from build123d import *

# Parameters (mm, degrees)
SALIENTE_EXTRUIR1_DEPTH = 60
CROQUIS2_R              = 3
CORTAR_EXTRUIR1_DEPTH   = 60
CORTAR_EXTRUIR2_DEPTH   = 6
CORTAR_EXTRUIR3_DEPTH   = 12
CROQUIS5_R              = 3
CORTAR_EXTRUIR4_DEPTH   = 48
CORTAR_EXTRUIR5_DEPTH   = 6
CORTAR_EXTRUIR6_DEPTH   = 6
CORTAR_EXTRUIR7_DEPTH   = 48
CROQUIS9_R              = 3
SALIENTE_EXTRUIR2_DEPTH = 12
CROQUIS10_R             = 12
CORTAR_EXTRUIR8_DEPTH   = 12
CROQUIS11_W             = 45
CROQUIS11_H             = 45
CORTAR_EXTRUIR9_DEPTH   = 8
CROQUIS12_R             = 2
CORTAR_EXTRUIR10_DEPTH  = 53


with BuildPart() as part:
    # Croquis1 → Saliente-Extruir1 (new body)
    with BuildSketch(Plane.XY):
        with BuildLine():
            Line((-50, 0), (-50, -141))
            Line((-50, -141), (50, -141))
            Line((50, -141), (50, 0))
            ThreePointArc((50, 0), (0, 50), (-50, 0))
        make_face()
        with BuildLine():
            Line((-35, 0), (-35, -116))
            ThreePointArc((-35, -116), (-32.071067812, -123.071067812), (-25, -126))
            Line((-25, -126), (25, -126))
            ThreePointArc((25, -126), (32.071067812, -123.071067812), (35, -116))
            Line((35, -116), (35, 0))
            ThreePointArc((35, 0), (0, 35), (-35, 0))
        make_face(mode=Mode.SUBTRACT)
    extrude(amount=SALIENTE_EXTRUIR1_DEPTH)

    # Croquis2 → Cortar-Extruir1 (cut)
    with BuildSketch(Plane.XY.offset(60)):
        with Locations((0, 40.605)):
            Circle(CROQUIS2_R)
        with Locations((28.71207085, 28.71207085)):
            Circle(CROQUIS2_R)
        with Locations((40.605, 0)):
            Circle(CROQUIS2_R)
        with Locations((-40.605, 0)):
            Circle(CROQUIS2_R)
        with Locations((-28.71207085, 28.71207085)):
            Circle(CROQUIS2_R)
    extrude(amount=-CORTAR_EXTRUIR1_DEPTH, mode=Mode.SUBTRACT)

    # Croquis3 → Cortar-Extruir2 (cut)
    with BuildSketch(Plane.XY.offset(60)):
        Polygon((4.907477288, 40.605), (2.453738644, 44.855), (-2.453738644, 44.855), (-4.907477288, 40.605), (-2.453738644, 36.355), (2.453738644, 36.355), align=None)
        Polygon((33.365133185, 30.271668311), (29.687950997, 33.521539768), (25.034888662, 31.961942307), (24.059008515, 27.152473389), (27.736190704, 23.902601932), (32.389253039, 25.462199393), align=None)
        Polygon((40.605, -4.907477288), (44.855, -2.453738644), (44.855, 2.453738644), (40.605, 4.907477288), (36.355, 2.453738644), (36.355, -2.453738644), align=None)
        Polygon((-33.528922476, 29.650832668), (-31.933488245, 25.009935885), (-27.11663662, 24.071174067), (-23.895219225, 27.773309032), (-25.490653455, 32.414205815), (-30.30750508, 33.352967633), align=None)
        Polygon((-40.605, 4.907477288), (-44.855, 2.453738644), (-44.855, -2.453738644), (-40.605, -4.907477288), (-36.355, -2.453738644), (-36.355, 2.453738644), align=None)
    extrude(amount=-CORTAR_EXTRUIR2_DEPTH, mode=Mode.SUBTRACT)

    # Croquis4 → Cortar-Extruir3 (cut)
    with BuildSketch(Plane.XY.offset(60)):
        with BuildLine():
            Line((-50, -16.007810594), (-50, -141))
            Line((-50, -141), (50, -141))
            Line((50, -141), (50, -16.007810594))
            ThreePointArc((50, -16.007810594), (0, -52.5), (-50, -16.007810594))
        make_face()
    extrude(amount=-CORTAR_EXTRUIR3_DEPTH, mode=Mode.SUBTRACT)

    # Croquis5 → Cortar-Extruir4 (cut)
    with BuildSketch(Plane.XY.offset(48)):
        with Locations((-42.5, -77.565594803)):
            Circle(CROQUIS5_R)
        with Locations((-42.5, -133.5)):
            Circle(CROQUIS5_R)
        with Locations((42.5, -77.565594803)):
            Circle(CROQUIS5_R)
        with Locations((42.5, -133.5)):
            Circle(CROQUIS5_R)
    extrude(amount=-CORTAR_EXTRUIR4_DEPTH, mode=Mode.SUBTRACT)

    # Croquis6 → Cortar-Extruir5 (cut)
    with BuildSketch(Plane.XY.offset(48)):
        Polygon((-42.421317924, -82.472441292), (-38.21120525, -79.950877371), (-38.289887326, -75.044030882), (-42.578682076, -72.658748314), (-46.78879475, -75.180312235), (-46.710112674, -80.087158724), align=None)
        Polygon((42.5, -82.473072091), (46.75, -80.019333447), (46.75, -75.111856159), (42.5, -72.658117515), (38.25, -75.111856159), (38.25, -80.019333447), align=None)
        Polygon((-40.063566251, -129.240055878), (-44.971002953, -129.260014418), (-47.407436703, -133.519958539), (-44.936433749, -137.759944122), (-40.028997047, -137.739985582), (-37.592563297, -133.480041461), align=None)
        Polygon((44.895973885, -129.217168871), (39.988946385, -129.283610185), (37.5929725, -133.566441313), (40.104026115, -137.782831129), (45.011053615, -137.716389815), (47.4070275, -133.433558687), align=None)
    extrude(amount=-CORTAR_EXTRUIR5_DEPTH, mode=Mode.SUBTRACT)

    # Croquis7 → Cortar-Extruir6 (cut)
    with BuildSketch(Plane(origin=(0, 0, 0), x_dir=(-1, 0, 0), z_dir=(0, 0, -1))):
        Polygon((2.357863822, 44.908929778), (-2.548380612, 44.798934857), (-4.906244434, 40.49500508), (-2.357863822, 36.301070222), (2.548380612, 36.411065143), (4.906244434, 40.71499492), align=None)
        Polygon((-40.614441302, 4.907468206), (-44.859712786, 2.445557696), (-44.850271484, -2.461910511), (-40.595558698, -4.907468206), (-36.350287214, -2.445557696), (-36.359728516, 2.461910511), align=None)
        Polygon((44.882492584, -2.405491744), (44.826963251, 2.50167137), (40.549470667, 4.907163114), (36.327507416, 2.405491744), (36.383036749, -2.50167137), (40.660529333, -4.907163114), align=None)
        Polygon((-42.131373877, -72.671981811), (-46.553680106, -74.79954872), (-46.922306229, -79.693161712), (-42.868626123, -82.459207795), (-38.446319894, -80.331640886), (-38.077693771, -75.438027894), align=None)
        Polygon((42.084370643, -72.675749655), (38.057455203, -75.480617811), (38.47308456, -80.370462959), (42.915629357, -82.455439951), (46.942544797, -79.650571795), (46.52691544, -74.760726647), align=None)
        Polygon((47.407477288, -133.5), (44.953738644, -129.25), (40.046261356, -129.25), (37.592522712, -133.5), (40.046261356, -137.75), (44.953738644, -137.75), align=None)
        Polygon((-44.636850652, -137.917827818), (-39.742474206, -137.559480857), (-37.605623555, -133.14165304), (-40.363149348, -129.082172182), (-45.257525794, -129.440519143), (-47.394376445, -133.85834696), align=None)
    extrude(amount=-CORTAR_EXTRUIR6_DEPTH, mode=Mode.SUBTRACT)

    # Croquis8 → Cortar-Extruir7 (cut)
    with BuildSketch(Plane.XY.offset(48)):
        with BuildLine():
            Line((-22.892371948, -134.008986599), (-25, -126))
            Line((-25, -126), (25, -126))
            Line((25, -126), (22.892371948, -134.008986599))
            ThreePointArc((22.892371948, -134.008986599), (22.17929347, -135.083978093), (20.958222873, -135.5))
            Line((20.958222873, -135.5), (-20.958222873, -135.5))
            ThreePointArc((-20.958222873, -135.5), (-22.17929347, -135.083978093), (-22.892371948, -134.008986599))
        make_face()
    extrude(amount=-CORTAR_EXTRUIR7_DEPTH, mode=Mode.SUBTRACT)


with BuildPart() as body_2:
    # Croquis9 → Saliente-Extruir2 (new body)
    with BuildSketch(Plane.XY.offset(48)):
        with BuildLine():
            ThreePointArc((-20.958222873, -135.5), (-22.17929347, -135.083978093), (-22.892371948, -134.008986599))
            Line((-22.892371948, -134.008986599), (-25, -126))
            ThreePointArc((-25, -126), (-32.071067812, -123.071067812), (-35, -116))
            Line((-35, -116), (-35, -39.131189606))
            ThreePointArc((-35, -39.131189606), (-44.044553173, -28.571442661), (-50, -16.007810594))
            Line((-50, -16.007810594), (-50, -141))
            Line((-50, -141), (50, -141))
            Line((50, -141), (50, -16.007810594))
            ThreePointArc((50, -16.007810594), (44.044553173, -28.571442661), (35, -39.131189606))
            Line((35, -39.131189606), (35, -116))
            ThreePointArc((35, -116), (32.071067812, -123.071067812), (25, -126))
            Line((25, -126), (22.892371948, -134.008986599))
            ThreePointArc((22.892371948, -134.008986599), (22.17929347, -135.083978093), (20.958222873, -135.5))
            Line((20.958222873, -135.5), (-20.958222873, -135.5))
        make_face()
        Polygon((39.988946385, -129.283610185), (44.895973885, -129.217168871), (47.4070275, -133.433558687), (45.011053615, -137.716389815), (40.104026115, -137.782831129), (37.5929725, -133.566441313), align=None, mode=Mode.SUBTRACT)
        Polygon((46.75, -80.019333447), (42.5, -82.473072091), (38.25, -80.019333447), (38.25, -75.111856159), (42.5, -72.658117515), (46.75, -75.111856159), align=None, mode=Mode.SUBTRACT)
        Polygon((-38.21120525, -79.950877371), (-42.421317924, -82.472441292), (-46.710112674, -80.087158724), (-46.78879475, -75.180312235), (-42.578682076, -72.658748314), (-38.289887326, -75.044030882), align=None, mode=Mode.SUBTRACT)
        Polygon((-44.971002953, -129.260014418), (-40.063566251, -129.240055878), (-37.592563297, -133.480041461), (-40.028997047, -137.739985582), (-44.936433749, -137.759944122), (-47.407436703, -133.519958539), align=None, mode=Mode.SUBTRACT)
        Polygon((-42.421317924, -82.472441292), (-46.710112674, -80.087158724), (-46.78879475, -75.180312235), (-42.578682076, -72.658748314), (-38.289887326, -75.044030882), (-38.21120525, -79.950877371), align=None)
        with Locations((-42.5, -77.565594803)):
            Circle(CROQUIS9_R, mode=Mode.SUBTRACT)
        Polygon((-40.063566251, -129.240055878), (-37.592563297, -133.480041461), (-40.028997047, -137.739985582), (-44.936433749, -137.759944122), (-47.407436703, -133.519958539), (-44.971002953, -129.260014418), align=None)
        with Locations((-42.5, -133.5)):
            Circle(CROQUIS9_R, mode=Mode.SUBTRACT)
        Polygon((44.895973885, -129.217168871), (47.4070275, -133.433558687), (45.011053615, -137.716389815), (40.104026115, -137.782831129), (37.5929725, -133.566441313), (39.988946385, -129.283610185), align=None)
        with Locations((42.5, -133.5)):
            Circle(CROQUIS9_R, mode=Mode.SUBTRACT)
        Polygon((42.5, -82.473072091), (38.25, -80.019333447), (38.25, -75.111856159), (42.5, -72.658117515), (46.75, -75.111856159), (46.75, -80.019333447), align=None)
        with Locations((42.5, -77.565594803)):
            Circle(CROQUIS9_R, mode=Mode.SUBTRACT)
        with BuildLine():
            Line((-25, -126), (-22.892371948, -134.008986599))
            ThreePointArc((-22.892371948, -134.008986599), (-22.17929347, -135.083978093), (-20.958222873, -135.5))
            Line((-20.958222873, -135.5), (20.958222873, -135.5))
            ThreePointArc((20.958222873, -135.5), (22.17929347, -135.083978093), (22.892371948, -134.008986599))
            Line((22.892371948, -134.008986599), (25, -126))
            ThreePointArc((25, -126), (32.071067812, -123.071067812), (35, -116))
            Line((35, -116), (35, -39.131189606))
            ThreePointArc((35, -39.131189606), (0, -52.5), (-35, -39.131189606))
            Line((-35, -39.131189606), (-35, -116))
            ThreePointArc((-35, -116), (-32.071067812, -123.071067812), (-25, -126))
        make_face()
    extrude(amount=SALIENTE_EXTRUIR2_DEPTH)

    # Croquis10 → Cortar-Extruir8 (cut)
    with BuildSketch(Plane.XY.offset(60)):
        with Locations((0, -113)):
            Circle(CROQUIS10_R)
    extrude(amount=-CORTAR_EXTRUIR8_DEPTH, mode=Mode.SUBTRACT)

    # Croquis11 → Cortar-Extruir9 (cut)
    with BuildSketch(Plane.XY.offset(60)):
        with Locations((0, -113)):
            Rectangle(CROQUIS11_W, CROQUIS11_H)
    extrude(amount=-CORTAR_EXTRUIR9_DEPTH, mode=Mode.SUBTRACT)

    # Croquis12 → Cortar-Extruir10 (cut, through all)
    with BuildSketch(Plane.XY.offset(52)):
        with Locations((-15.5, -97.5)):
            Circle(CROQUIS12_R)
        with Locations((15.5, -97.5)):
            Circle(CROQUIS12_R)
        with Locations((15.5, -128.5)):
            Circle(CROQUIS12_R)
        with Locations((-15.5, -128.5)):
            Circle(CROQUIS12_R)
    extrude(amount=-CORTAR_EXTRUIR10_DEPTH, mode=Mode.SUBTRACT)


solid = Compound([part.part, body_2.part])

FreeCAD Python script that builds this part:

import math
import FreeCAD as App
import Part
import Sketcher
Q = App.Units.Quantity


def add_polygon(sketch, points):
    """Adds a closed chain of lines whose ends are joined by coincident constraints."""
    first, n = sketch.GeometryCount, len(points)
    for a, b in zip(points, points[1:] + points[:1]):
        sketch.addGeometry(Part.LineSegment(App.Vector(*a, 0), App.Vector(*b, 0)), False)
    for i in range(n):
        sketch.addConstraint(Sketcher.Constraint("Coincident", first + i, 2, first + (i + 1) % n, 1))

doc = App.newDocument("Part")
body = doc.addObject("PartDesign::Body", "Body")

# Sketch on XY plane
sketch1 = body.newObject("Sketcher::SketchObject", "Sketch")
sketch1.AttachmentSupport = (doc.getObject("XY_Plane"), [""])
sketch1.MapMode = "FlatFace"
sketch1.addGeometry(Part.LineSegment(App.Vector(-50, 0, 0), App.Vector(-50, -141, 0)), False)
sketch1.addGeometry(Part.LineSegment(App.Vector(-50, -141, 0), App.Vector(50, -141, 0)), False)
sketch1.addGeometry(Part.LineSegment(App.Vector(50, -141, 0), App.Vector(50, 0, 0)), False)
sketch1.addGeometry(Part.ArcOfCircle(Part.Circle(App.Vector(0, 0, 0), App.Vector(0, 0, 1), 50), math.radians(0), math.radians(180)), False)
sketch1.addGeometry(Part.LineSegment(App.Vector(-35, -116, 0), App.Vector(-35, 0, 0)), False)
sketch1.addGeometry(Part.ArcOfCircle(Part.Circle(App.Vector(0, 0, 0), App.Vector(0, 0, 1), 35), math.radians(0), math.radians(180)), False)
sketch1.addGeometry(Part.LineSegment(App.Vector(35, 0, 0), App.Vector(35, -116, 0)), False)
sketch1.addGeometry(Part.ArcOfCircle(Part.Circle(App.Vector(25, -116, 0), App.Vector(0, 0, 1), 10), math.radians(-90), math.radians(0)), False)
sketch1.addGeometry(Part.LineSegment(App.Vector(25, -126, 0), App.Vector(-25, -126, 0)), False)
sketch1.addGeometry(Part.ArcOfCircle(Part.Circle(App.Vector(-25, -116, 0), App.Vector(0, 0, 1), 10), math.radians(180), math.radians(270)), False)
sketch1.addConstraint(Sketcher.Constraint("Coincident", 0, 2, 1, 1))
sketch1.addConstraint(Sketcher.Constraint("Coincident", 1, 2, 2, 1))
sketch1.addConstraint(Sketcher.Constraint("Tangent", 2, 2, 3, 1))
sketch1.addConstraint(Sketcher.Constraint("Tangent", 3, 2, 0, 1))
sketch1.addConstraint(Sketcher.Constraint("Tangent", 4, 2, 5, 2))
sketch1.addConstraint(Sketcher.Constraint("Tangent", 5, 1, 6, 1))
sketch1.addConstraint(Sketcher.Constraint("Tangent", 6, 2, 7, 2))
sketch1.addConstraint(Sketcher.Constraint("Tangent", 7, 1, 8, 1))
sketch1.addConstraint(Sketcher.Constraint("Tangent", 8, 2, 9, 2))
sketch1.addConstraint(Sketcher.Constraint("Tangent", 9, 1, 4, 1))
sketch1.addConstraint(Sketcher.Constraint("Vertical", 0))
sketch1.addConstraint(Sketcher.Constraint("Horizontal", 1))
sketch1.addConstraint(Sketcher.Constraint("Vertical", 2))
sketch1.addConstraint(Sketcher.Constraint("Vertical", 4))
sketch1.addConstraint(Sketcher.Constraint("Vertical", 6))
sketch1.addConstraint(Sketcher.Constraint("Horizontal", 8))
sketch1.addConstraint(Sketcher.Constraint("Coincident", 3, 3, -1, 1))
sketch1.addConstraint(Sketcher.Constraint("Coincident", 5, 3, -1, 1))
sketch1.addConstraint(Sketcher.Constraint("Equal", 7, 9))
sketch1.addConstraint(Sketcher.Constraint("Radius", 3, Q("50 mm")))
sketch1.addConstraint(Sketcher.Constraint("Radius", 5, Q("35 mm")))
sketch1.addConstraint(Sketcher.Constraint("Radius", 7, Q("10 mm")))
sketch1.addConstraint(Sketcher.Constraint("DistanceY", 0, 2, 0, 1, Q("141 mm")))
sketch1.addConstraint(Sketcher.Constraint("DistanceY", 4, 1, 4, 2, Q("116 mm")))
pad1 = body.newObject("PartDesign::Pad", "Pad")
pad1.Profile = sketch1
pad1.Length = 60

# Sketch on XY plane
sketch2 = body.newObject("Sketcher::SketchObject", "Sketch001")
sketch2.AttachmentSupport = (doc.getObject("XY_Plane"), [""])
sketch2.MapMode = "FlatFace"
sketch2.AttachmentOffset = App.Placement(App.Vector(0, 0, 60), App.Rotation())
sketch2.addGeometry(Part.Circle(App.Vector(0, 40.6, 0), App.Vector(0, 0, 1), 3), False)
sketch2.addGeometry(Part.Circle(App.Vector(28.7, 28.7, 0), App.Vector(0, 0, 1), 3), False)
sketch2.addGeometry(Part.Circle(App.Vector(40.6, 0, 0), App.Vector(0, 0, 1), 3), False)
sketch2.addGeometry(Part.Circle(App.Vector(-40.6, 0, 0), App.Vector(0, 0, 1), 3), False)
sketch2.addGeometry(Part.Circle(App.Vector(-28.7, 28.7, 0), App.Vector(0, 0, 1), 3), False)
sketch2.addConstraint(Sketcher.Constraint("Equal", 0, 1))
sketch2.addConstraint(Sketcher.Constraint("Equal", 1, 2))
sketch2.addConstraint(Sketcher.Constraint("Equal", 2, 3))
sketch2.addConstraint(Sketcher.Constraint("Equal", 3, 4))
sketch2.addConstraint(Sketcher.Constraint("Symmetric", 2, 3, 3, 3, -1, 1))
sketch2.addConstraint(Sketcher.Constraint("Symmetric", 1, 3, 4, 3, -2))
sketch2.addConstraint(Sketcher.Constraint("PointOnObject", 0, 3, -2))
sketch2.addConstraint(Sketcher.Constraint("PointOnObject", 2, 3, -1))
sketch2.addConstraint(Sketcher.Constraint("Diameter", 0, Q("6 mm")))
sketch2.addConstraint(Sketcher.Constraint("DistanceX", 3, 3, 2, 3, Q("81.21 mm")))
sketch2.addConstraint(Sketcher.Constraint("DistanceY", -1, 1, 0, 3, Q("40.605 mm")))
sketch2.addConstraint(Sketcher.Constraint("DistanceX", -1, 1, 1, 3, Q("28.712071 mm")))
sketch2.addConstraint(Sketcher.Constraint("DistanceY", -1, 1, 1, 3, Q("28.712071 mm")))
pocket1 = body.newObject("PartDesign::Pocket", "Pocket")
pocket1.Profile = sketch2
pocket1.Length = 60

# Sketch on XY plane
sketch3 = body.newObject("Sketcher::SketchObject", "Sketch002")
sketch3.AttachmentSupport = (doc.getObject("XY_Plane"), [""])
sketch3.MapMode = "FlatFace"
sketch3.AttachmentOffset = App.Placement(App.Vector(0, 0, 60), App.Rotation())
add_polygon(sketch3, [(4.9, 40.6), (2.5, 44.9), (-2.5, 44.9), (-4.9, 40.6), (-2.5, 36.4), (2.5, 36.4)])  # lines 0-5
add_polygon(sketch3, [(33.4, 30.3), (29.7, 33.5), (25, 32), (24.1, 27.2), (27.7, 23.9), (32.4, 25.5)])  # lines 6-11
add_polygon(sketch3, [(40.6, -4.9), (44.9, -2.5), (44.9, 2.5), (40.6, 4.9), (36.4, 2.5), (36.4, -2.5)])  # lines 12-17
add_polygon(sketch3, [(-33.5, 29.7), (-31.9, 25), (-27.1, 24.1), (-23.9, 27.8), (-25.5, 32.4), (-30.3, 33.4)])  # lines 18-23
add_polygon(sketch3, [(-40.6, 4.9), (-44.9, 2.5), (-44.9, -2.5), (-40.6, -4.9), (-36.4, -2.5), (-36.4, 2.5)])  # lines 24-29
sketch3.addConstraint(Sketcher.Constraint("Horizontal", 1))
sketch3.addConstraint(Sketcher.Constraint("Horizontal", 4))
sketch3.addConstraint(Sketcher.Constraint("Vertical", 13))
sketch3.addConstraint(Sketcher.Constraint("Vertical", 16))
sketch3.addConstraint(Sketcher.Constraint("Vertical", 25))
sketch3.addConstraint(Sketcher.Constraint("Vertical", 28))
sketch3.addConstraint(Sketcher.Constraint("Symmetric", 12, 2, 24, 2, -1, 1))
sketch3.addConstraint(Sketcher.Constraint("Symmetric", 14, 2, 26, 2, -1, 1))
sketch3.addConstraint(Sketcher.Constraint("Symmetric", 15, 2, 27, 2, -1, 1))
sketch3.addConstraint(Sketcher.Constraint("Symmetric", 17, 2, 29, 2, -1, 1))
sketch3.addConstraint(Sketcher.Constraint("Symmetric", 2, 2, 5, 2, -2))
sketch3.addConstraint(Sketcher.Constraint("Symmetric", 17, 2, 26, 2, -2))
sketch3.addConstraint(Sketcher.Constraint("Parallel", 0, 3))
sketch3.addConstraint(Sketcher.Constraint("Parallel", 2, 5))
sketch3.addConstraint(Sketcher.Constraint("Parallel", 6, 9))
sketch3.addConstraint(Sketcher.Constraint("Parallel", 7, 10))
sketch3.addConstraint(Sketcher.Constraint("Parallel", 8, 11))
sketch3.addConstraint(Sketcher.Constraint("Perpendicular", 3, 12))
sketch3.addConstraint(Sketcher.Constraint("Perpendicular", 5, 14))
sketch3.addConstraint(Sketcher.Constraint("Parallel", 12, 15))
sketch3.addConstraint(Sketcher.Constraint("Parallel", 14, 17))
sketch3.addConstraint(Sketcher.Constraint("Parallel", 18, 21))
sketch3.addConstraint(Sketcher.Constraint("Parallel", 19, 22))
sketch3.addConstraint(Sketcher.Constraint("Parallel", 20, 23))
sketch3.addConstraint(Sketcher.Constraint("Parallel", 17, 26))
sketch3.addConstraint(Sketcher.Constraint("Parallel", 26, 29))
sketch3.addConstraint(Sketcher.Constraint("Horizontal", 13, 2, 15, 2))
sketch3.addConstraint(Sketcher.Constraint("Horizontal", 12, 2, 16, 2))
sketch3.addConstraint(Sketcher.Constraint("Vertical", 1, 2, 3, 2))
sketch3.addConstraint(Sketcher.Constraint("Equal", 4, 13))
sketch3.addConstraint(Sketcher.Constraint("Equal", 5, 6))
sketch3.addConstraint(Sketcher.Constraint("Equal", 6, 7))
sketch3.addConstraint(Sketcher.Constraint("Equal", 7, 8))
sketch3.addConstraint(Sketcher.Constraint("Equal", 8, 9))
sketch3.addConstraint(Sketcher.Constraint("Equal", 11, 12))
sketch3.addConstraint(Sketcher.Constraint("Equal", 17, 18))
sketch3.addConstraint(Sketcher.Constraint("Equal", 18, 19))
sketch3.addConstraint(Sketcher.Constraint("Equal", 19, 20))
sketch3.addConstraint(Sketcher.Constraint("Equal", 20, 21))
sketch3.addConstraint(Sketcher.Constraint("Angle", 0, Q("120 deg")))
sketch3.addConstraint(Sketcher.Constraint("DistanceY", 3, 2, 1, 2, Q("8.5 mm")))
sketch3.addConstraint(Sketcher.Constraint("DistanceY", -1, 1, 0, 2, Q("44.855 mm")))
sketch3.addConstraint(Sketcher.Constraint("DistanceX", -1, 1, 12, 2, Q("44.855 mm")))
sketch3.addConstraint(Sketcher.Constraint("DistanceY", -1, 1, 9, 2, Q("23.902602 mm")))
sketch3.addConstraint(Sketcher.Constraint("DistanceY", -1, 1, 10, 2, Q("25.462199 mm")))
sketch3.addConstraint(Sketcher.Constraint("DistanceX", 1, 2, 1, 1, Q("4.907477 mm")))
sketch3.addConstraint(Sketcher.Constraint("DistanceX", -1, 1, 6, 2, Q("29.687951 mm")))
sketch3.addConstraint(Sketcher.Constraint("DistanceY", -1, 1, 6, 2, Q("33.52154 mm")))
sketch3.addConstraint(Sketcher.Constraint("DistanceX", -1, 1, 8, 2, Q("24.059009 mm")))
sketch3.addConstraint(Sketcher.Constraint("DistanceX", 18, 2, -1, 1, Q("31.933488 mm")))
sketch3.addConstraint(Sketcher.Constraint("DistanceX", 20, 2, -1, 1, Q("23.895219 mm")))
sketch3.addConstraint(Sketcher.Constraint("DistanceY", -1, 1, 20, 2, Q("27.773309 mm")))
sketch3.addConstraint(Sketcher.Constraint("DistanceX", 18, 2, 19, 2, Q("4.816852 mm")))
sketch3.addConstraint(Sketcher.Constraint("DistanceY", 19, 2, 21, 2, Q("8.343032 mm")))
pocket2 = body.newObject("PartDesign::Pocket", "Pocket001")
pocket2.Profile = sketch3
pocket2.Length = 6

# Sketch on XY plane
sketch4 = body.newObject("Sketcher::SketchObject", "Sketch003")
sketch4.AttachmentSupport = (doc.getObject("XY_Plane"), [""])
sketch4.MapMode = "FlatFace"
sketch4.AttachmentOffset = App.Placement(App.Vector(0, 0, 60), App.Rotation())
sketch4.addGeometry(Part.LineSegment(App.Vector(-50, -16, 0), App.Vector(-50, -141, 0)), False)
sketch4.addGeometry(Part.LineSegment(App.Vector(-50, -141, 0), App.Vector(50, -141, 0)), False)
sketch4.addGeometry(Part.LineSegment(App.Vector(50, -141, 0), App.Vector(50, -16, 0)), False)
sketch4.addGeometry(Part.ArcOfCircle(Part.Circle(App.Vector(0, 0, 0), App.Vector(0, 0, 1), 52), math.radians(-162), math.radians(-18)), False)
sketch4.addConstraint(Sketcher.Constraint("Coincident", 0, 2, 1, 1))
sketch4.addConstraint(Sketcher.Constraint("Coincident", 1, 2, 2, 1))
sketch4.addConstraint(Sketcher.Constraint("Coincident", 2, 2, 3, 2))
sketch4.addConstraint(Sketcher.Constraint("Coincident", 3, 1, 0, 1))
sketch4.addConstraint(Sketcher.Constraint("Vertical", 0))
sketch4.addConstraint(Sketcher.Constraint("Horizontal", 1))
sketch4.addConstraint(Sketcher.Constraint("Vertical", 2))
sketch4.addConstraint(Sketcher.Constraint("Coincident", 3, 3, -1, 1))
sketch4.addConstraint(Sketcher.Constraint("Horizontal", 2, 2, 3, 1))
sketch4.addConstraint(Sketcher.Constraint("Radius", 3, Q("52.5 mm")))
sketch4.addConstraint(Sketcher.Constraint("DistanceX", 1, 1, 1, 2, Q("100 mm")))
sketch4.addConstraint(Sketcher.Constraint("DistanceY", 0, 2, -1, 1, Q("141 mm")))
pocket3 = body.newObject("PartDesign::Pocket", "Pocket002")
pocket3.Profile = sketch4
pocket3.Length = 12

# Sketch on XY plane
sketch5 = body.newObject("Sketcher::SketchObject", "Sketch004")
sketch5.AttachmentSupport = (doc.getObject("XY_Plane"), [""])
sketch5.MapMode = "FlatFace"
sketch5.AttachmentOffset = App.Placement(App.Vector(0, 0, 48), App.Rotation())
sketch5.addGeometry(Part.Circle(App.Vector(-42.5, -77.6, 0), App.Vector(0, 0, 1), 3), False)
sketch5.addGeometry(Part.Circle(App.Vector(-42.5, -133.5, 0), App.Vector(0, 0, 1), 3), False)
sketch5.addGeometry(Part.Circle(App.Vector(42.5, -77.6, 0), App.Vector(0, 0, 1), 3), False)
sketch5.addGeometry(Part.Circle(App.Vector(42.5, -133.5, 0), App.Vector(0, 0, 1), 3), False)
sketch5.addConstraint(Sketcher.Constraint("Equal", 0, 1))
sketch5.addConstraint(Sketcher.Constraint("Equal", 1, 2))
sketch5.addConstraint(Sketcher.Constraint("Equal", 2, 3))
sketch5.addConstraint(Sketcher.Constraint("Symmetric", 0, 3, 2, 3, -2))
sketch5.addConstraint(Sketcher.Constraint("Symmetric", 1, 3, 3, 3, -2))
sketch5.addConstraint(Sketcher.Constraint("Vertical", 0, 3, 1, 3))
sketch5.addConstraint(Sketcher.Constraint("Diameter", 0, Q("6 mm")))
sketch5.addConstraint(Sketcher.Constraint("DistanceX", 0, 3, 2, 3, Q("85 mm")))
sketch5.addConstraint(Sketcher.Constraint("DistanceY", 1, 3, -1, 1, Q("133.5 mm")))
sketch5.addConstraint(Sketcher.Constraint("DistanceY", 0, 3, -1, 1, Q("77.565595 mm")))
pocket4 = body.newObject("PartDesign::Pocket", "Pocket003")
pocket4.Profile = sketch5
pocket4.Length = 48

# Sketch on XY plane
sketch6 = body.newObject("Sketcher::SketchObject", "Sketch005")
sketch6.AttachmentSupport = (doc.getObject("XY_Plane"), [""])
sketch6.MapMode = "FlatFace"
sketch6.AttachmentOffset = App.Placement(App.Vector(0, 0, 48), App.Rotation())
add_polygon(sketch6, [(-42.421318, -82.472441), (-38.211205, -79.950877), (-38.289887, -75.044031), (-42.578682, -72.658748), (-46.788795, -75.180312), (-46.710113, -80.087159)])  # lines 0-5
add_polygon(sketch6, [(42.5, -82.473072), (46.75, -80.019333), (46.75, -75.111856), (42.5, -72.658118), (38.25, -75.111856), (38.25, -80.019333)])  # lines 6-11
add_polygon(sketch6, [(-40.063566, -129.240056), (-44.971003, -129.260014), (-47.407437, -133.519959), (-44.936434, -137.759944), (-40.028997, -137.739986), (-37.592563, -133.480041)])  # lines 12-17
add_polygon(sketch6, [(44.895974, -129.217169), (39.988946, -129.28361), (37.592973, -133.566441), (40.104026, -137.782831), (45.011054, -137.71639), (47.407027, -133.433559)])  # lines 18-23
sketch6.addConstraint(Sketcher.Constraint("Vertical", 7))
sketch6.addConstraint(Sketcher.Constraint("Vertical", 10))
sketch6.addConstraint(Sketcher.Constraint("DistanceX", -1, 1, 8, 2, Q("42.5 mm")))
sketch6.addConstraint(Sketcher.Constraint("DistanceX", -1, 1, 11, 2, Q("42.5 mm")))
sketch6.addConstraint(Sketcher.Constraint("DistanceX", 9, 2, 7, 2, Q("8.5 mm")))
sketch6.addConstraint(Sketcher.Constraint("DistanceX", -1, 1, 6, 2, Q("46.75 mm")))
sketch6.addConstraint(Sketcher.Constraint("DistanceX", 20, 2, 22, 2, Q("7.303001 mm")))
sketch6.addConstraint(Sketcher.Constraint("DistanceX", 19, 2, 23, 2, Q("7.303001 mm")))
sketch6.addConstraint(Sketcher.Constraint("DistanceY", 13, 2, 4, 2, Q("53.4328 mm")))
sketch6.addConstraint(Sketcher.Constraint("DistanceY", 16, 2, 5, 2, Q("51.0076 mm")))
sketch6.addConstraint(Sketcher.Constraint("DistanceY", 7, 1, 7, 2, Q("4.907477 mm")))
sketch6.addConstraint(Sketcher.Constraint("DistanceY", 10, 2, 10, 1, Q("4.907477 mm")))
sketch6.addConstraint(Sketcher.Constraint("DistanceY", 1, 2, -1, 1, Q("75.044031 mm")))
sketch6.addConstraint(Sketcher.Constraint("DistanceY", 2, 2, -1, 1, Q("72.658748 mm")))
sketch6.addConstraint(Sketcher.Constraint("DistanceY", 4, 2, -1, 1, Q("80.087159 mm")))
sketch6.addConstraint(Sketcher.Constraint("DistanceY", 5, 2, -1, 1, Q("82.472441 mm")))
sketch6.addConstraint(Sketcher.Constraint("DistanceY", 18, 2, -1, 1, Q("129.28361 mm")))
sketch6.addConstraint(Sketcher.Constraint("DistanceY", 19, 2, -1, 1, Q("133.566441 mm")))
sketch6.addConstraint(Sketcher.Constraint("DistanceY", 20, 2, -1, 1, Q("137.782831 mm")))
sketch6.addConstraint(Sketcher.Constraint("DistanceY", 21, 2, -1, 1, Q("137.71639 mm")))
sketch6.addConstraint(Sketcher.Constraint("DistanceY", 22, 2, -1, 1, Q("133.433559 mm")))
sketch6.addConstraint(Sketcher.Constraint("DistanceY", 23, 2, -1, 1, Q("129.217169 mm")))
sketch6.addConstraint(Sketcher.Constraint("DistanceY", 0, 2, 2, 2, Q("7.292129 mm")))
sketch6.addConstraint(Sketcher.Constraint("DistanceY", 3, 2, 1, 2, Q("0.136281 mm")))
sketch6.addConstraint(Sketcher.Constraint("DistanceX", 3, 2, 0, 2, Q("8.57759 mm")))
sketch6.addConstraint(Sketcher.Constraint("DistanceX", 4, 2, 2, 2, Q("4.131431 mm")))
sketch6.addConstraint(Sketcher.Constraint("DistanceX", 5, 2, 1, 2, Q("4.131431 mm")))
sketch6.addConstraint(Sketcher.Constraint("DistanceY", 0, 2, 7, 2, Q("4.839021 mm")))
sketch6.addConstraint(Sketcher.Constraint("DistanceY", 7, 2, 8, 2, Q("2.453739 mm")))
sketch6.addConstraint(Sketcher.Constraint("DistanceY", 9, 2, 8, 2, Q("2.453739 mm")))
sketch6.addConstraint(Sketcher.Constraint("DistanceY", 11, 2, 6, 2, Q("2.453739 mm")))
sketch6.addConstraint(Sketcher.Constraint("DistanceX", 4, 2, 12, 2, Q("1.73911 mm")))
sketch6.addConstraint(Sketcher.Constraint("DistanceX", 3, 2, 12, 2, Q("1.817792 mm")))
sketch6.addConstraint(Sketcher.Constraint("DistanceX", 13, 2, 5, 2, Q("4.986119 mm")))
sketch6.addConstraint(Sketcher.Constraint("DistanceX", 13, 2, 0, 2, Q("9.196231 mm")))
sketch6.addConstraint(Sketcher.Constraint("DistanceX", 12, 2, 14, 2, Q("0.034569 mm")))
sketch6.addConstraint(Sketcher.Constraint("DistanceY", 14, 2, 12, 2, Q("8.49993 mm")))
sketch6.addConstraint(Sketcher.Constraint("DistanceY", 14, 2, 15, 2, Q("0.019959 mm")))
sketch6.addConstraint(Sketcher.Constraint("DistanceX", 13, 2, 15, 2, Q("7.37844 mm")))
sketch6.addConstraint(Sketcher.Constraint("DistanceY", 15, 2, 0, 2, Q("57.789108 mm")))
sketch6.addConstraint(Sketcher.Constraint("DistanceX", 12, 2, 16, 2, Q("7.37844 mm")))
sketch6.addConstraint(Sketcher.Constraint("DistanceY", 12, 2, 17, 2, Q("0.019959 mm")))
sketch6.addConstraint(Sketcher.Constraint("DistanceX", 17, 2, 15, 2, Q("0.034569 mm")))
sketch6.addConstraint(Sketcher.Constraint("DistanceX", 18, 2, 20, 2, Q("0.11508 mm")))
sketch6.addConstraint(Sketcher.Constraint("DistanceX", 19, 2, 21, 2, Q("7.418081 mm")))
sketch6.addConstraint(Sketcher.Constraint("Distance", 18, Q("4.907477 mm")))
sketch6.addConstraint(Sketcher.Constraint("DistanceX", 0, 2, -1, 1, Q("38.211205 mm")))
sketch6.addConstraint(Sketcher.Constraint("DistanceX", -1, 1, 18, 2, Q("39.988946 mm")))
pocket5 = body.newObject("PartDesign::Pocket", "Pocket004")
pocket5.Profile = sketch6
pocket5.Length = 6

# Sketch on XY plane
sketch7 = body.newObject("Sketcher::SketchObject", "Sketch006")
sketch7.AttachmentSupport = (doc.getObject("XY_Plane"), [""])
sketch7.MapMode = "FlatFace"
add_polygon(sketch7, [(-2.357864, 44.90893), (2.548381, 44.798935), (4.906244, 40.495005), (2.357864, 36.30107), (-2.548381, 36.411065), (-4.906244, 40.714995)])  # lines 0-5
add_polygon(sketch7, [(40.614441, 4.907468), (44.859713, 2.445558), (44.850271, -2.461911), (40.595559, -4.907468), (36.350287, -2.445558), (36.359729, 2.461911)])  # lines 6-11
add_polygon(sketch7, [(-44.882493, -2.405492), (-44.826963, 2.501671), (-40.549471, 4.907163), (-36.327507, 2.405492), (-36.383037, -2.501671), (-40.660529, -4.907163)])  # lines 12-17
add_polygon(sketch7, [(42.131374, -72.671982), (46.55368, -74.799549), (46.922306, -79.693162), (42.868626, -82.459208), (38.44632, -80.331641), (38.077694, -75.438028)])  # lines 18-23
add_polygon(sketch7, [(-42.084371, -72.67575), (-38.057455, -75.480618), (-38.473085, -80.370463), (-42.915629, -82.45544), (-46.942545, -79.650572), (-46.526915, -74.760727)])  # lines 24-29
add_polygon(sketch7, [(-47.407477, -133.5), (-44.953739, -129.25), (-40.046261, -129.25), (-37.592523, -133.5), (-40.046261, -137.75), (-44.953739, -137.75)])  # lines 30-35
add_polygon(sketch7, [(44.636851, -137.917828), (39.742474, -137.559481), (37.605624, -133.141653), (40.363149, -129.082172), (45.257526, -129.440519), (47.394376, -133.858347)])  # lines 36-41
sketch7.addConstraint(Sketcher.Constraint("Horizontal", 31))
sketch7.addConstraint(Sketcher.Constraint("Horizontal", 34))
sketch7.addConstraint(Sketcher.Constraint("DistanceY", 32, 2, -1, 1, Q("133.5 mm")))
sketch7.addConstraint(Sketcher.Constraint("DistanceY", 35, 2, -1, 1, Q("133.5 mm")))
sketch7.addConstraint(Sketcher.Constraint("DistanceY", 33, 2, 31, 2, Q("8.5 mm")))
sketch7.addConstraint(Sketcher.Constraint("DistanceY", 30, 2, -1, 1, Q("129.25 mm")))
sketch7.addConstraint(Sketcher.Constraint("DistanceY", 12, 2, 2, 2, Q("33.799399 mm")))
sketch7.addConstraint(Sketcher.Constraint("DistanceX", 12, 2, 5, 2, Q("42.469099 mm")))
sketch7.addConstraint(Sketcher.Constraint("DistanceY", 25, 2, 16, 2, Q("75.4633 mm")))
sketch7.addConstraint(Sketcher.Constraint("DistanceX", 26, 2, 16, 2, Q("2.2551 mm")))
sketch7.addConstraint(Sketcher.Constraint("DistanceX", 20, 2, 39, 2, Q("2.3889 mm")))
sketch7.addConstraint(Sketcher.Constraint("DistanceX", 38, 2, 41, 2, Q("4.273701 mm")))
sketch7.addConstraint(Sketcher.Constraint("DistanceX", 31, 1, 31, 2, Q("4.907477 mm")))
sketch7.addConstraint(Sketcher.Constraint("DistanceX", 34, 2, 34, 1, Q("4.907477 mm")))
sketch7.addConstraint(Sketcher.Constraint("DistanceX", -1, 1, 0, 2, Q("2.548381 mm")))
sketch7.addConstraint(Sketcher.Constraint("DistanceY", -1, 1, 2, 2, Q("36.30107 mm")))
sketch7.addConstraint(Sketcher.Constraint("DistanceX", 3, 2, -1, 1, Q("2.548381 mm")))
sketch7.addConstraint(Sketcher.Constraint("DistanceY", -1, 1, 5, 2, Q("44.90893 mm")))
sketch7.addConstraint(Sketcher.Constraint("DistanceX", -1, 1, 7, 2, Q("44.850271 mm")))
sketch7.addConstraint(Sketcher.Constraint("DistanceY", 7, 2, -1, 1, Q("2.461911 mm")))
sketch7.addConstraint(Sketcher.Constraint("DistanceX", -1, 1, 8, 2, Q("40.595559 mm")))
sketch7.addConstraint(Sketcher.Constraint("DistanceY", 8, 2, -1, 1, Q("4.907468 mm")))
sketch7.addConstraint(Sketcher.Constraint("DistanceX", -1, 1, 10, 2, Q("36.359729 mm")))
sketch7.addConstraint(Sketcher.Constraint("DistanceY", -1, 1, 10, 2, Q("2.461911 mm")))
sketch7.addConstraint(Sketcher.Constraint("DistanceX", -1, 1, 11, 2, Q("40.614441 mm")))
sketch7.addConstraint(Sketcher.Constraint("DistanceY", -1, 1, 11, 2, Q("4.907468 mm")))
sketch7.addConstraint(Sketcher.Constraint("DistanceX", 13, 2, -1, 1, Q("40.549471 mm")))
sketch7.addConstraint(Sketcher.Constraint("DistanceY", -1, 1, 14, 2, Q("2.405492 mm")))
sketch7.addConstraint(Sketcher.Constraint("DistanceY", 15, 2, -1, 1, Q("2.501671 mm")))
sketch7.addConstraint(Sketcher.Constraint("DistanceX", 16, 2, -1, 1, Q("40.660529 mm")))
sketch7.addConstraint(Sketcher.Constraint("DistanceY", 17, 2, -1, 1, Q("2.405492 mm")))
sketch7.addConstraint(Sketcher.Constraint("DistanceX", -1, 1, 18, 2, Q("46.55368 mm")))
sketch7.addConstraint(Sketcher.Constraint("DistanceY", 18, 2, -1, 1, Q("74.799549 mm")))
sketch7.addConstraint(Sketcher.Constraint("DistanceY", 19, 2, -1, 1, Q("79.693162 mm")))
sketch7.addConstraint(Sketcher.Constraint("DistanceX", -1, 1, 21, 2, Q("38.44632 mm")))
sketch7.addConstraint(Sketcher.Constraint("DistanceY", 21, 2, -1, 1, Q("80.331641 mm")))
sketch7.addConstraint(Sketcher.Constraint("DistanceY", 23, 2, -1, 1, Q("72.671982 mm")))
sketch7.addConstraint(Sketcher.Constraint("DistanceY", 26, 2, -1, 1, Q("82.45544 mm")))
sketch7.addConstraint(Sketcher.Constraint("DistanceY", 27, 2, -1, 1, Q("79.650572 mm")))
sketch7.addConstraint(Sketcher.Constraint("DistanceX", 29, 2, -1, 1, Q("42.084371 mm")))
sketch7.addConstraint(Sketcher.Constraint("DistanceY", 29, 2, -1, 1, Q("72.67575 mm")))
sketch7.addConstraint(Sketcher.Constraint("DistanceX", 30, 2, -1, 1, Q("44.953739 mm")))
sketch7.addConstraint(Sketcher.Constraint("DistanceX", 33, 2, -1, 1, Q("40.046261 mm")))
sketch7.addConstraint(Sketcher.Constraint("DistanceY", 36, 2, -1, 1, Q("137.559481 mm")))
sketch7.addConstraint(Sketcher.Constraint("DistanceX", -1, 1, 38, 2, Q("40.363149 mm")))
sketch7.addConstraint(Sketcher.Constraint("DistanceY", 39, 2, -1, 1, Q("129.440519 mm")))
sketch7.addConstraint(Sketcher.Constraint("DistanceY", 1, 2, 0, 2, Q("4.30393 mm")))
sketch7.addConstraint(Sketcher.Constraint("DistanceX", 2, 2, 1, 2, Q("2.548381 mm")))
sketch7.addConstraint(Sketcher.Constraint("DistanceY", 3, 2, 1, 2, Q("4.08394 mm")))
sketch7.addConstraint(Sketcher.Constraint("DistanceY", 3, 2, 4, 2, Q("4.30393 mm")))
sketch7.addConstraint(Sketcher.Constraint("DistanceX", 4, 2, 2, 2, Q("7.264108 mm")))
sketch7.addConstraint(Sketcher.Constraint("DistanceX", 4, 2, 5, 2, Q("2.548381 mm")))
sketch7.addConstraint(Sketcher.Constraint("DistanceX", 2, 2, 6, 2, Q("42.501849 mm")))
sketch7.addConstraint(Sketcher.Constraint("DistanceX", 7, 2, 6, 2, Q("0.009441 mm")))
sketch7.addConstraint(Sketcher.Constraint("DistanceY", 7, 2, 6, 2, Q("4.907468 mm")))
sketch7.addConstraint(Sketcher.Constraint("DistanceX", 9, 2, 8, 2, Q("4.245271 mm")))
sketch7.addConstraint(Sketcher.Constraint("DistanceY", 8, 2, 9, 2, Q("2.461911 mm")))
sketch7.addConstraint(Sketcher.Constraint("DistanceY", 12, 2, 13, 2, Q("2.405492 mm")))
sketch7.addConstraint(Sketcher.Constraint("DistanceY", 13, 2, 4, 2, Q("35.807832 mm")))
sketch7.addConstraint(Sketcher.Constraint("DistanceX", 14, 2, 2, 2, Q("38.685371 mm")))
sketch7.addConstraint(Sketcher.Constraint("DistanceX", 15, 2, 14, 2, Q("0.055529 mm")))
sketch7.addConstraint(Sketcher.Constraint("DistanceY", 16, 2, 15, 2, Q("2.405492 mm")))
sketch7.addConstraint(Sketcher.Constraint("DistanceX", 17, 2, 12, 2, Q("0.055529 mm")))
sketch7.addConstraint(Sketcher.Constraint("DistanceX", 9, 2, 19, 2, Q("10.572019 mm")))
sketch7.addConstraint(Sketcher.Constraint("DistanceX", 20, 2, 19, 2, Q("4.05368 mm")))
sketch7.addConstraint(Sketcher.Constraint("DistanceY", 20, 2, 18, 2, Q("7.659659 mm")))
sketch7.addConstraint(Sketcher.Constraint("DistanceY", 20, 2, 22, 2, Q("7.02118 mm")))
sketch7.addConstraint(Sketcher.Constraint("DistanceX", 22, 2, 23, 2, Q("4.05368 mm")))
sketch7.addConstraint(Sketcher.Constraint("DistanceX", 24, 2, 15, 2, Q("1.674418 mm")))
sketch7.addConstraint(Sketcher.Constraint("DistanceX", 24, 2, 22, 2, Q("76.135149 mm")))
sketch7.addConstraint(Sketcher.Constraint("DistanceY", 24, 2, 22, 2, Q("0.04259 mm")))
sketch7.addConstraint(Sketcher.Constraint("DistanceX", 25, 2, 24, 2, Q("0.415629 mm")))
sketch7.addConstraint(Sketcher.Constraint("DistanceX", 27, 2, 25, 2, Q("8.46946 mm")))
sketch7.addConstraint(Sketcher.Constraint("DistanceX", 27, 2, 28, 2, Q("0.415629 mm")))
sketch7.addConstraint(Sketcher.Constraint("DistanceY", 24, 2, 28, 2, Q("0.719891 mm")))
sketch7.addConstraint(Sketcher.Constraint("DistanceX", 31, 2, 32, 2, Q("2.453739 mm")))
sketch7.addConstraint(Sketcher.Constraint("DistanceX", 35, 2, 30, 2, Q("2.453739 mm")))
sketch7.addConstraint(Sketcher.Constraint("DistanceX", 36, 2, 20, 2, Q("3.126152 mm")))
sketch7.addConstraint(Sketcher.Constraint("DistanceX", 37, 2, 36, 2, Q("2.136851 mm")))
sketch7.addConstraint(Sketcher.Constraint("DistanceY", 37, 2, 19, 2, Q("53.448491 mm")))
sketch7.addConstraint(Sketcher.Constraint("DistanceY", 37, 2, 38, 2, Q("4.059481 mm")))
sketch7.addConstraint(Sketcher.Constraint("DistanceX", 39, 2, 40, 2, Q("2.136851 mm")))
sketch7.addConstraint(Sketcher.Constraint("DistanceY", 40, 2, 20, 2, Q("51.399139 mm")))
sketch7.addConstraint(Sketcher.Constraint("DistanceY", 41, 2, 40, 2, Q("4.059481 mm")))
pocket6 = body.newObject("PartDesign::Pocket", "Pocket005")
pocket6.Profile = sketch7
pocket6.Length = 6
pocket6.Reversed = True

# Sketch on XY plane
sketch8 = body.newObject("Sketcher::SketchObject", "Sketch007")
sketch8.AttachmentSupport = (doc.getObject("XY_Plane"), [""])
sketch8.MapMode = "FlatFace"
sketch8.AttachmentOffset = App.Placement(App.Vector(0, 0, 48), App.Rotation())
sketch8.addGeometry(Part.LineSegment(App.Vector(-25, -126, 0), App.Vector(-22.9, -134, 0)), False)
sketch8.addGeometry(Part.ArcOfCircle(Part.Circle(App.Vector(-21, -133.5, 0), App.Vector(0, 0, 1), 2), math.radians(-165), math.radians(-90)), False)
sketch8.addGeometry(Part.LineSegment(App.Vector(-21, -135.5, 0), App.Vector(21, -135.5, 0)), False)
sketch8.addGeometry(Part.ArcOfCircle(Part.Circle(App.Vector(21, -133.5, 0), App.Vector(0, 0, 1), 2), math.radians(-90), math.radians(-15)), False)
sketch8.addGeometry(Part.LineSegment(App.Vector(22.9, -134, 0), App.Vector(25, -126, 0)), False)
sketch8.addGeometry(Part.LineSegment(App.Vector(25, -126, 0), App.Vector(-25, -126, 0)), False)
sketch8.addConstraint(Sketcher.Constraint("Tangent", 0, 2, 1, 1))
sketch8.addConstraint(Sketcher.Constraint("Tangent", 1, 2, 2, 1))
sketch8.addConstraint(Sketcher.Constraint("Tangent", 2, 2, 3, 1))
sketch8.addConstraint(Sketcher.Constraint("Tangent", 3, 2, 4, 1))
sketch8.addConstraint(Sketcher.Constraint("Coincident", 4, 2, 5, 1))
sketch8.addConstraint(Sketcher.Constraint("Coincident", 5, 2, 0, 1))
sketch8.addConstraint(Sketcher.Constraint("Horizontal", 2))
sketch8.addConstraint(Sketcher.Constraint("Horizontal", 5))
sketch8.addConstraint(Sketcher.Constraint("Equal", 1, 3))
sketch8.addConstraint(Sketcher.Constraint("Symmetric", 0, 2, 3, 2, -2))
sketch8.addConstraint(Sketcher.Constraint("Radius", 1, Q("2 mm")))
sketch8.addConstraint(Sketcher.Constraint("DistanceX", 5, 2, 5, 1, Q("50 mm")))
sketch8.addConstraint(Sketcher.Constraint("DistanceY", 4, 2, -1, 1, Q("126 mm")))
sketch8.addConstraint(Sketcher.Constraint("DistanceY", 1, 3, -1, 1, Q("133.5 mm")))
sketch8.addConstraint(Sketcher.Constraint("DistanceX", 2, 1, 2, 2, Q("41.916446 mm")))
pocket7 = body.newObject("PartDesign::Pocket", "Pocket006")
pocket7.Profile = sketch8
pocket7.Length = 48
body2 = doc.addObject("PartDesign::Body", "Body001")

# Sketch on XY plane
sketch9 = body2.newObject("Sketcher::SketchObject", "Sketch008")
sketch9.AttachmentSupport = (doc.getObject("XY_Plane001"), [""])
sketch9.MapMode = "FlatFace"
sketch9.AttachmentOffset = App.Placement(App.Vector(0, 0, 48), App.Rotation())
sketch9.addGeometry(Part.ArcOfCircle(Part.Circle(App.Vector(0, 0, 0), App.Vector(0, 0, 1), 52.5), math.radians(-162), math.radians(-132)), False)
sketch9.addGeometry(Part.LineSegment(App.Vector(-50, -16, 0), App.Vector(-50, -141, 0)), False)
sketch9.addGeometry(Part.LineSegment(App.Vector(-50, -141, 0), App.Vector(50, -141, 0)), False)
sketch9.addGeometry(Part.LineSegment(App.Vector(50, -141, 0), App.Vector(50, -16, 0)), False)
sketch9.addGeometry(Part.ArcOfCircle(Part.Circle(App.Vector(0, 0, 0), App.Vector(0, 0, 1), 52.5), math.radians(-48), math.radians(-18)), False)
sketch9.addGeometry(Part.ArcOfCircle(Part.Circle(App.Vector(0, 0, 0), App.Vector(0, 0, 1), 52.5), math.radians(-132), math.radians(-48)), False)
sketch9.addGeometry(Part.Circle(App.Vector(-42.5, -133.5, 0), App.Vector(0, 0, 1), 3), False)
sketch9.addGeometry(Part.Circle(App.Vector(42.5, -133.5, 0), App.Vector(0, 0, 1), 3), False)
sketch9.addGeometry(Part.Circle(App.Vector(-42.5, -77.6, 0), App.Vector(0, 0, 1), 3), False)
sketch9.addGeometry(Part.Circle(App.Vector(42.5, -77.6, 0), App.Vector(0, 0, 1), 3), False)
sketch9.addConstraint(Sketcher.Constraint("Coincident", 0, 1, 1, 1))
sketch9.addConstraint(Sketcher.Constraint("Coincident", 1, 2, 2, 1))
sketch9.addConstraint(Sketcher.Constraint("Coincident", 2, 2, 3, 1))
sketch9.addConstraint(Sketcher.Constraint("Coincident", 3, 2, 4, 2))
sketch9.addConstraint(Sketcher.Constraint("Tangent", 4, 1, 5, 2))
sketch9.addConstraint(Sketcher.Constraint("Tangent", 5, 1, 0, 2))
sketch9.addConstraint(Sketcher.Constraint("Vertical", 1))
sketch9.addConstraint(Sketcher.Constraint("Horizontal", 2))
sketch9.addConstraint(Sketcher.Constraint("Vertical", 3))
sketch9.addConstraint(Sketcher.Constraint("Coincident", 0, 3, -1, 1))
sketch9.addConstraint(Sketcher.Constraint("Coincident", 4, 3, -1, 1))
sketch9.addConstraint(Sketcher.Constraint("Equal", 6, 7))
sketch9.addConstraint(Sketcher.Constraint("Equal", 7, 8))
sketch9.addConstraint(Sketcher.Constraint("Equal", 8, 9))
sketch9.addConstraint(Sketcher.Constraint("Symmetric", 6, 3, 7, 3, -2))
sketch9.addConstraint(Sketcher.Constraint("Symmetric", 8, 3, 9, 3, -2))
sketch9.addConstraint(Sketcher.Constraint("Horizontal", 0, 1, 3, 2))
sketch9.addConstraint(Sketcher.Constraint("Horizontal", 4, 1, 5, 1))
sketch9.addConstraint(Sketcher.Constraint("Vertical", 6, 3, 8, 3))
sketch9.addConstraint(Sketcher.Constraint("Diameter", 6, Q("6 mm")))
sketch9.addConstraint(Sketcher.Constraint("Radius", 0, Q("52.5 mm")))
sketch9.addConstraint(Sketcher.Constraint("DistanceX", 2, 1, 2, 2, Q("100 mm")))
sketch9.addConstraint(Sketcher.Constraint("DistanceY", 1, 2, -1, 1, Q("141 mm")))
sketch9.addConstraint(Sketcher.Constraint("DistanceX", -1, 1, 4, 1, Q("35 mm")))
sketch9.addConstraint(Sketcher.Constraint("DistanceX", 6, 3, 7, 3, Q("85 mm")))
sketch9.addConstraint(Sketcher.Constraint("DistanceY", 6, 3, -1, 1, Q("133.5 mm")))
sketch9.addConstraint(Sketcher.Constraint("DistanceY", 8, 3, -1, 1, Q("77.565595 mm")))
pad2 = body2.newObject("PartDesign::Pad", "Pad001")
pad2.Profile = sketch9
pad2.Length = 12

# Sketch on XY plane
sketch10 = body2.newObject("Sketcher::SketchObject", "Sketch009")
sketch10.AttachmentSupport = (doc.getObject("XY_Plane001"), [""])
sketch10.MapMode = "FlatFace"
sketch10.AttachmentOffset = App.Placement(App.Vector(0, 0, 60), App.Rotation())
sketch10.addGeometry(Part.Circle(App.Vector(0, -113, 0), App.Vector(0, 0, 1), 12), False)
sketch10.addConstraint(Sketcher.Constraint("PointOnObject", 0, 3, -2))
sketch10.addConstraint(Sketcher.Constraint("Diameter", 0, Q("24 mm")))
sketch10.addConstraint(Sketcher.Constraint("DistanceY", 0, 3, -1, 1, Q("113 mm")))
pocket8 = body2.newObject("PartDesign::Pocket", "Pocket007")
pocket8.Profile = sketch10
pocket8.Length = 12

# Sketch on XY plane
sketch11 = body2.newObject("Sketcher::SketchObject", "Sketch010")
sketch11.AttachmentSupport = (doc.getObject("XY_Plane001"), [""])
sketch11.MapMode = "FlatFace"
sketch11.AttachmentOffset = App.Placement(App.Vector(0, 0, 60), App.Rotation())
add_polygon(sketch11, [(-22, -90), (-22, -136), (22, -136), (22, -90)])  # lines 0-3
sketch11.addConstraint(Sketcher.Constraint("Vertical", 0))
sketch11.addConstraint(Sketcher.Constraint("Horizontal", 1))
sketch11.addConstraint(Sketcher.Constraint("Vertical", 2))
sketch11.addConstraint(Sketcher.Constraint("Horizontal", 3))
sketch11.addConstraint(Sketcher.Constraint("Equal", 3, 0))
sketch11.addConstraint(Sketcher.Constraint("DistanceX", 1, 1, 1, 2, Q("45 mm")))
sketch11.addConstraint(Sketcher.Constraint("DistanceX", 0, 2, -1, 1, Q("22.5 mm")))
sketch11.addConstraint(Sketcher.Constraint("DistanceY", 0, 2, -1, 1, Q("135.5 mm")))
pocket9 = body2.newObject("PartDesign::Pocket", "Pocket008")
pocket9.Profile = sketch11
pocket9.Length = 8

# Sketch on XY plane
sketch12 = body2.newObject("Sketcher::SketchObject", "Sketch011")
sketch12.AttachmentSupport = (doc.getObject("XY_Plane001"), [""])
sketch12.MapMode = "FlatFace"
sketch12.AttachmentOffset = App.Placement(App.Vector(0, 0, 52), App.Rotation())
sketch12.addGeometry(Part.Circle(App.Vector(-15.5, -97.5, 0), App.Vector(0, 0, 1), 2), False)
sketch12.addGeometry(Part.Circle(App.Vector(15.5, -97.5, 0), App.Vector(0, 0, 1), 2), False)
sketch12.addGeometry(Part.Circle(App.Vector(15.5, -128.5, 0), App.Vector(0, 0, 1), 2), False)
sketch12.addGeometry(Part.Circle(App.Vector(-15.5, -128.5, 0), App.Vector(0, 0, 1), 2), False)
sketch12.addConstraint(Sketcher.Constraint("Equal", 0, 1))
sketch12.addConstraint(Sketcher.Constraint("Equal", 1, 2))
sketch12.addConstraint(Sketcher.Constraint("Equal", 2, 3))
sketch12.addConstraint(Sketcher.Constraint("Symmetric", 0, 3, 1, 3, -2))
sketch12.addConstraint(Sketcher.Constraint("Symmetric", 2, 3, 3, 3, -2))
sketch12.addConstraint(Sketcher.Constraint("Vertical", 1, 3, 2, 3))
sketch12.addConstraint(Sketcher.Constraint("Diameter", 0, Q("4 mm")))
sketch12.addConstraint(Sketcher.Constraint("DistanceX", 0, 3, 1, 3, Q("31 mm")))
sketch12.addConstraint(Sketcher.Constraint("DistanceY", 2, 3, 1, 3, Q("31 mm")))
sketch12.addConstraint(Sketcher.Constraint("DistanceY", 0, 3, -1, 1, Q("97.5 mm")))
pocket10 = body2.newObject("PartDesign::Pocket", "Pocket009")
pocket10.Profile = sketch12
pocket10.Type = "ThroughAll"

doc.recompute()
